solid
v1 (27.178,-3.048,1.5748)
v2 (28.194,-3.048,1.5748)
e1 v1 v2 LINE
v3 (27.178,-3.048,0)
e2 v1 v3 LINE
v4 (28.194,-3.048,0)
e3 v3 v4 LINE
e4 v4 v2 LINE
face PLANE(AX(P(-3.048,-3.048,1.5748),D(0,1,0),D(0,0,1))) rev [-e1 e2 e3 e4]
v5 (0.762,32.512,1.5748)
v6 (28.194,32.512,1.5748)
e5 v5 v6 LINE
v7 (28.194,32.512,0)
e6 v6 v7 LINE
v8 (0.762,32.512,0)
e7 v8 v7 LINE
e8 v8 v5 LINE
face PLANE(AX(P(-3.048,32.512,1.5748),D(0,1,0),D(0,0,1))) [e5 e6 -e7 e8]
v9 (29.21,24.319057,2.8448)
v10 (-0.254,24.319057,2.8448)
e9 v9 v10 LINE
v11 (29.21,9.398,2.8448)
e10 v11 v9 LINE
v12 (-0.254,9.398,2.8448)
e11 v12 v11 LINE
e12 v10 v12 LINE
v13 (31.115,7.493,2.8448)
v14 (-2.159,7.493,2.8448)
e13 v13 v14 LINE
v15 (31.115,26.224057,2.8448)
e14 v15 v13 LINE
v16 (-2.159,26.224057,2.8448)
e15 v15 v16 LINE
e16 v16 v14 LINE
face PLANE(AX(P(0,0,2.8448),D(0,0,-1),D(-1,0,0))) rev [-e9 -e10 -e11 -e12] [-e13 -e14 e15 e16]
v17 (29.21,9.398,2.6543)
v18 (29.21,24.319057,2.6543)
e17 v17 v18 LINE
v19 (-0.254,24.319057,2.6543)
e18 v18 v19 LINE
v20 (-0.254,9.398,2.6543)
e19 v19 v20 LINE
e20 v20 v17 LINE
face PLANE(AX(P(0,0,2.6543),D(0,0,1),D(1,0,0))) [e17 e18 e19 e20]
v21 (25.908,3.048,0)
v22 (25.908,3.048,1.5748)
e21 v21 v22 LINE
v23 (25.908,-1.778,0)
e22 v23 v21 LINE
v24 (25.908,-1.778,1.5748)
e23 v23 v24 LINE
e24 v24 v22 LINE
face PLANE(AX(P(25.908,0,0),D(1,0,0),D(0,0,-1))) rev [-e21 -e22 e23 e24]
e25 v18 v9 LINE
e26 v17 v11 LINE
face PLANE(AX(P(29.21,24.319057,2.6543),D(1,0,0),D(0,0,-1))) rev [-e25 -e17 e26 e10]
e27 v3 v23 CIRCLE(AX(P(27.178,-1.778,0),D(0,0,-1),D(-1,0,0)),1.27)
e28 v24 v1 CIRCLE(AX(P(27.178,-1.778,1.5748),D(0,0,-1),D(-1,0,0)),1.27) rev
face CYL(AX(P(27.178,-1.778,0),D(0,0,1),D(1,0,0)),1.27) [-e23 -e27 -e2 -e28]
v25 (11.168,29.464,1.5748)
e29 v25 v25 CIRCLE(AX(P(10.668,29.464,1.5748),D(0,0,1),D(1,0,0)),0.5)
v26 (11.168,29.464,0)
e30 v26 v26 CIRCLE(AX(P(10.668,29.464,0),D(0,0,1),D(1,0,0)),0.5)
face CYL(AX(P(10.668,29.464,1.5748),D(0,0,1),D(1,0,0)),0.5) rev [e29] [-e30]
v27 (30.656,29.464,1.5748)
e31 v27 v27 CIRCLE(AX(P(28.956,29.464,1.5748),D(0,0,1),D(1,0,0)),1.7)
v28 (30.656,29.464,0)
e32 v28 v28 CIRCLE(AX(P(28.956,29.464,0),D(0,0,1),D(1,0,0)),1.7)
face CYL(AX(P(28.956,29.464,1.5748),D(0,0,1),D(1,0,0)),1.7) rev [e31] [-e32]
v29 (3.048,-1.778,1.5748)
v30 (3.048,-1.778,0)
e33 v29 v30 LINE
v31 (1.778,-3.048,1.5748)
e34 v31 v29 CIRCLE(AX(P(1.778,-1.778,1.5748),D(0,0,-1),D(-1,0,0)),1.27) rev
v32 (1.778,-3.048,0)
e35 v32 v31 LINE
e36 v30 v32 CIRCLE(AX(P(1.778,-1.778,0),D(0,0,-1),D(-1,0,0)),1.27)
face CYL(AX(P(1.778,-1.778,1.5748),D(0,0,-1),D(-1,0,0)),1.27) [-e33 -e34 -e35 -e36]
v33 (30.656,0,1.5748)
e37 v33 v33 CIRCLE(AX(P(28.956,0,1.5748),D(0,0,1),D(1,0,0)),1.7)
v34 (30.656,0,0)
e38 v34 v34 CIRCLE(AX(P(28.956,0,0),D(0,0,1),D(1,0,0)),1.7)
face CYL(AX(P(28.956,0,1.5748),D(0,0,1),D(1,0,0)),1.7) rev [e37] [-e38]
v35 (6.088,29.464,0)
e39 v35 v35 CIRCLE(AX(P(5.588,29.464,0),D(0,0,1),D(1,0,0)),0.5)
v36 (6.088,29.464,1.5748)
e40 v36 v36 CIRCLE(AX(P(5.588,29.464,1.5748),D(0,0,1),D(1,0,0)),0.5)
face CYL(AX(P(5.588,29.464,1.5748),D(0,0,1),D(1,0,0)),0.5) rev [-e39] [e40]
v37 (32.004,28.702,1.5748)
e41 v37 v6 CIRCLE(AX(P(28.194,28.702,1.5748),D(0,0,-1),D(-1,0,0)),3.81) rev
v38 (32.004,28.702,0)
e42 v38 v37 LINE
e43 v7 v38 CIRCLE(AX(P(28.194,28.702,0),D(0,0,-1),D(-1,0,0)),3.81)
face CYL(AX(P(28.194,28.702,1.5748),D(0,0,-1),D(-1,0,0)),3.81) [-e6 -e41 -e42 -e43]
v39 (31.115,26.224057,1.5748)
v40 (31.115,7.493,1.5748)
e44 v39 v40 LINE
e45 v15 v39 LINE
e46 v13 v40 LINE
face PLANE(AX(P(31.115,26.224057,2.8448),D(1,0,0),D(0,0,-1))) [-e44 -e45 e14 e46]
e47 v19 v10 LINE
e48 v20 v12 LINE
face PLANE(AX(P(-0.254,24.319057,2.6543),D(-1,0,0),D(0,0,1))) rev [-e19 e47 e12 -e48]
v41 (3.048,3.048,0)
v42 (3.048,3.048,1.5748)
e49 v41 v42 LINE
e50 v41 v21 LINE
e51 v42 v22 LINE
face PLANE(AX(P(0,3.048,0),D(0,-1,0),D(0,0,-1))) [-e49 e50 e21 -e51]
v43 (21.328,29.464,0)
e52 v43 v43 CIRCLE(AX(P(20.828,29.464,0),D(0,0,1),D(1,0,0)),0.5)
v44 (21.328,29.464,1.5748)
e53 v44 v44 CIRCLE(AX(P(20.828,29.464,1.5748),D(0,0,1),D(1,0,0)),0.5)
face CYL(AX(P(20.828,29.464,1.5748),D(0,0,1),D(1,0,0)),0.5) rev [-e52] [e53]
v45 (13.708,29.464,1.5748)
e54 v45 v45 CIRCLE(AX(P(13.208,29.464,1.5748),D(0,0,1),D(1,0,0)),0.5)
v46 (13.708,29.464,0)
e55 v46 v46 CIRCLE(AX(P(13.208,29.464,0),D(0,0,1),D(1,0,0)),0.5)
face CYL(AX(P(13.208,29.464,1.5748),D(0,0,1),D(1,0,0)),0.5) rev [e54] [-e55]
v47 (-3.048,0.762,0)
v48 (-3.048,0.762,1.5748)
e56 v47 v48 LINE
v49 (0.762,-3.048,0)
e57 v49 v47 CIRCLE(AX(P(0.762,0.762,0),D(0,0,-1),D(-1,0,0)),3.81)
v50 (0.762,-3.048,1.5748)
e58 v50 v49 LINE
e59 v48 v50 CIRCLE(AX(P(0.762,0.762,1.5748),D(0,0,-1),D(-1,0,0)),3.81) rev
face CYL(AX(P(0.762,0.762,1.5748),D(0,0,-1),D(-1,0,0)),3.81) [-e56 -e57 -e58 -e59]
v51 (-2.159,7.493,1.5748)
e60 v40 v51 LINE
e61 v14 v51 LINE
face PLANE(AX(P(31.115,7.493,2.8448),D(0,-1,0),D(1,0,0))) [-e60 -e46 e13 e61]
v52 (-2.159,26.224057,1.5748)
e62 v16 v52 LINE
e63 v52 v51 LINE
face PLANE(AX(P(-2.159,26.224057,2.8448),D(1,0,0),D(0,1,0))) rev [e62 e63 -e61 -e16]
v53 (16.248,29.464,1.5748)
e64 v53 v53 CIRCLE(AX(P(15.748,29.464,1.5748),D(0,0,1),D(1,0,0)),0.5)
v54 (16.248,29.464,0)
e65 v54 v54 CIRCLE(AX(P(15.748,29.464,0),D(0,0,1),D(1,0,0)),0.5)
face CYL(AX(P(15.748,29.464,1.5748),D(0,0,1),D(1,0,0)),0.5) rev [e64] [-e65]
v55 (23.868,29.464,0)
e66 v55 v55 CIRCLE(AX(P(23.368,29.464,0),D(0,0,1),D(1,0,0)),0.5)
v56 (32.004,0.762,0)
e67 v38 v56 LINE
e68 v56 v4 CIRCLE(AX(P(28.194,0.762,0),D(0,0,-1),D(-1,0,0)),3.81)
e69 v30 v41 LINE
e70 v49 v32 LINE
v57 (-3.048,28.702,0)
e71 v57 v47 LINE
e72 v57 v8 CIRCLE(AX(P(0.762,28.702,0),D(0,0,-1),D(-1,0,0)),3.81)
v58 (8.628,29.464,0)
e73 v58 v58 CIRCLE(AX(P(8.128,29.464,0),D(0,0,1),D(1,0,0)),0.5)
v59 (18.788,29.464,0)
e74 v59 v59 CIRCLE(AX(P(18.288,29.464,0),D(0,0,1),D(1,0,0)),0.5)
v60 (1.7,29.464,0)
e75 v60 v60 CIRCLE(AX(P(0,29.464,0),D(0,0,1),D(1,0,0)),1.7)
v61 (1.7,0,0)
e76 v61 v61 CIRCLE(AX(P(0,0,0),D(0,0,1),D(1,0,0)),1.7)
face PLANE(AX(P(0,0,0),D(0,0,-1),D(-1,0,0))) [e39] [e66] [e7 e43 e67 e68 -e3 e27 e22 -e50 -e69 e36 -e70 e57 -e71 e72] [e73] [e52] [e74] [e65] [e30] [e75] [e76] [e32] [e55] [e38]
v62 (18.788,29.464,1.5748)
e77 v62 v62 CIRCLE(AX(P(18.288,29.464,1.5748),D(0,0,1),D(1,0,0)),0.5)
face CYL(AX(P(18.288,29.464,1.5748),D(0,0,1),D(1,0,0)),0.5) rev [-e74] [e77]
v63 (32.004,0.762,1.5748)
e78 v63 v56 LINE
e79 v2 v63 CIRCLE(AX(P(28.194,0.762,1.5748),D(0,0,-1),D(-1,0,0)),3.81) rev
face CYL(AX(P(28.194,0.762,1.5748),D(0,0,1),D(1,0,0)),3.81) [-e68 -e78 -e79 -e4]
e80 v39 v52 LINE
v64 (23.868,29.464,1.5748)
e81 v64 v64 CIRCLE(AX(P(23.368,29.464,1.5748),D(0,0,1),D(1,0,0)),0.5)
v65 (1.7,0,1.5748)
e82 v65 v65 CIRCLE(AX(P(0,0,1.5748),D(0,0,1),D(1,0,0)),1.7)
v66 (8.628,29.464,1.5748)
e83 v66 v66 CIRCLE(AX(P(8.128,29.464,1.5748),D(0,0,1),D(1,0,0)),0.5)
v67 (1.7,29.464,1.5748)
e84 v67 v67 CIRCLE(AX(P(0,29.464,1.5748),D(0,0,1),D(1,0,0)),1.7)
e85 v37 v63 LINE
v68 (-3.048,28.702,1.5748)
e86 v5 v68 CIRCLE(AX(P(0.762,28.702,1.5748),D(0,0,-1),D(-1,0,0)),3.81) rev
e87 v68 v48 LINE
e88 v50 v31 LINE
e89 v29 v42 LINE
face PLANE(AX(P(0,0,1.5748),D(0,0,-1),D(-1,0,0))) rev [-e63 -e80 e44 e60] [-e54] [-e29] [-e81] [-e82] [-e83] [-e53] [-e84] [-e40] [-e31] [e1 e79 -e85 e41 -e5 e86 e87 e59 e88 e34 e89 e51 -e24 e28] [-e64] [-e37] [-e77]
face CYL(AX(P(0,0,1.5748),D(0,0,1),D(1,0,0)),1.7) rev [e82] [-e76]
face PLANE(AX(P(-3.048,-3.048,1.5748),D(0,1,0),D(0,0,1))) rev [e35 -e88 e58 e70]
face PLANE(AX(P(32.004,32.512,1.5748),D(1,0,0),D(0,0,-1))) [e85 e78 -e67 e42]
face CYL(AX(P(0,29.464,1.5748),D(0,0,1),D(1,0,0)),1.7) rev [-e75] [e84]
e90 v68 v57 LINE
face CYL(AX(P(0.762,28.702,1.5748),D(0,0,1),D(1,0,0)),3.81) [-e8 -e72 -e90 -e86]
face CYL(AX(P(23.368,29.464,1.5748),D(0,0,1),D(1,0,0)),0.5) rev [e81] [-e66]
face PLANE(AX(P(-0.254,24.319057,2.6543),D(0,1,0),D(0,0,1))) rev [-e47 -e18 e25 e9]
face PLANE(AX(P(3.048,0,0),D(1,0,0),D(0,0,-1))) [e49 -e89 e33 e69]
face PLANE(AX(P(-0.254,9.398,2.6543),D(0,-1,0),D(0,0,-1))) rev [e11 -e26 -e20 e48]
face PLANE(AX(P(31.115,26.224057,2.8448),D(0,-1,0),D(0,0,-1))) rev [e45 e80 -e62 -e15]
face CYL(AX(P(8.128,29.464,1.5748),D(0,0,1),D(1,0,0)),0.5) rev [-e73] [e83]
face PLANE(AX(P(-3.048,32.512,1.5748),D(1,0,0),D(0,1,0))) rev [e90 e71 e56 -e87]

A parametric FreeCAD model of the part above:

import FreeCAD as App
import Part
import Sketcher
from FreeCAD import Vector
Q = App.Units.Quantity


def edges_at(feature, points):
    """Names of the edges that pass closest to the given points."""
    edges = feature.Shape.Edges
    near = lambda p: min(range(len(edges)), key=lambda i: edges[i].distToShape(Part.Vertex(*p))[0])
    return sorted({f"Edge{near(p) + 1}" for p in points})

doc = App.newDocument("Part")
body = doc.addObject("PartDesign::Body", "Body")

sketch1 = body.newObject("Sketcher::SketchObject", "Sketch")
sketch1.AttachmentSupport = (doc.getObject("XY_Plane"), [""])
sketch1.MapMode = "FlatFace"
sketch1.addGeometry([
    Part.LineSegment(Vector(-3.048, 32.512, 0), Vector(-3.048, -3.048, 0)),
    Part.LineSegment(Vector(-3.048, -3.048, 0), Vector(32.004, -3.048, 0)),
    Part.LineSegment(Vector(32.004, -3.048, 0), Vector(32.004, 32.512, 0)),
    Part.LineSegment(Vector(32.004, 32.512, 0), Vector(-3.048, 32.512, 0)),
], False)
sketch1.addConstraint([
    Sketcher.Constraint("Coincident", 0, 2, 1, 1),
    Sketcher.Constraint("Coincident", 1, 2, 2, 1),
    Sketcher.Constraint("Coincident", 2, 2, 3, 1),
    Sketcher.Constraint("Coincident", 3, 2, 0, 1),
    Sketcher.Constraint("Vertical", 0),
    Sketcher.Constraint("Horizontal", 1),
    Sketcher.Constraint("Vertical", 2),
    Sketcher.Constraint("Horizontal", 3),
    Sketcher.Constraint("DistanceY", 0, 2, 0, 1, Q("1.4 in")),
    Sketcher.Constraint("DistanceX", 1, 1, 1, 2, Q("1.38 in")),
    Sketcher.Constraint("DistanceX", 0, 2, -1, 1, Q("0.12 in")),
    Sketcher.Constraint("DistanceY", 0, 2, -1, 1, Q("0.12 in")),
])
pad1 = body.newObject("PartDesign::Pad", "Pad")
pad1.Profile = sketch1
pad1.Length = Q("0.062 in")

sketch2 = body.newObject("Sketcher::SketchObject", "Sketch001")
sketch2.AttachmentSupport = (doc.getObject("XY_Plane"), [""])
sketch2.MapMode = "FlatFace"
sketch2.AttachmentOffset = App.Placement(Vector(0, 0, 0.062 * 25.4), App.Rotation())
sketch2.addGeometry([
    Part.LineSegment(Vector(3.048, 3.048, 0), Vector(3.048, -3.048, 0)),
    Part.LineSegment(Vector(3.048, -3.048, 0), Vector(25.908, -3.048, 0)),
    Part.LineSegment(Vector(25.908, -3.048, 0), Vector(25.908, 3.048, 0)),
    Part.LineSegment(Vector(25.908, 3.048, 0), Vector(3.048, 3.048, 0)),
], False)
sketch2.addConstraint([
    Sketcher.Constraint("Coincident", 0, 2, 1, 1),
    Sketcher.Constraint("Coincident", 1, 2, 2, 1),
    Sketcher.Constraint("Coincident", 2, 2, 3, 1),
    Sketcher.Constraint("Coincident", 3, 2, 0, 1),
    Sketcher.Constraint("Vertical", 0),
    Sketcher.Constraint("Horizontal", 1),
    Sketcher.Constraint("Vertical", 2),
    Sketcher.Constraint("Horizontal", 3),
    Sketcher.Constraint("DistanceX", 1, 1, 1, 2, Q("0.9 in")),
    Sketcher.Constraint("DistanceY", 0, 2, 0, 1, Q("0.24 in")),
    Sketcher.Constraint("DistanceX", -1, 1, 0, 2, Q("0.12 in")),
    Sketcher.Constraint("DistanceY", 0, 2, -1, 1, Q("0.12 in")),
])
pocket1 = body.newObject("PartDesign::Pocket", "Pocket")
pocket1.Profile = sketch2
pocket1.Length = Q("0.062 in")

sketch3 = body.newObject("Sketcher::SketchObject", "Sketch002")
sketch3.AttachmentSupport = (doc.getObject("XY_Plane"), [""])
sketch3.MapMode = "FlatFace"
sketch3.AttachmentOffset = App.Placement(Vector(0, 0, 0.062 * 25.4), App.Rotation())
sketch3.addGeometry([
    Part.Circle(Vector(0, 29.464, 0), Vector(0, 0, 1), 1.7),
    Part.Circle(Vector(0, 0, 0), Vector(0, 0, 1), 1.7),
    Part.Circle(Vector(28.956, 0, 0), Vector(0, 0, 1), 1.7),
    Part.Circle(Vector(28.956, 29.464, 0), Vector(0, 0, 1), 1.7),
], False)
sketch3.addConstraint([
    Sketcher.Constraint("Coincident", 1, 3, -1, 1),
    Sketcher.Constraint("Equal", 0, 1),
    Sketcher.Constraint("Equal", 1, 2),
    Sketcher.Constraint("Equal", 2, 3),
    Sketcher.Constraint("PointOnObject", 0, 3, -2),
    Sketcher.Constraint("PointOnObject", 2, 3, -1),
    Sketcher.Constraint("Horizontal", 0, 3, 3, 3),
    Sketcher.Constraint("Vertical", 2, 3, 3, 3),
    Sketcher.Constraint("Diameter", 0, 3.4),
    Sketcher.Constraint("DistanceY", -1, 1, 0, 3, Q("1.16 in")),
    Sketcher.Constraint("DistanceX", -1, 1, 2, 3, Q("1.14 in")),
])
doc.recompute()
hole = body.newObject("PartDesign::Hole", "Hole")
hole.Profile = sketch3
hole.ThreadType = "None"
hole.Diameter = 3.4
hole.DepthType = "ThroughAll"

sketch4 = body.newObject("Sketcher::SketchObject", "Sketch003")
sketch4.AttachmentSupport = (doc.getObject("XY_Plane"), [""])
sketch4.MapMode = "FlatFace"
sketch4.AttachmentOffset = App.Placement(Vector(0, 0, 0.062 * 25.4), App.Rotation())
sketch4.addGeometry([
    Part.Circle(Vector(5.588, 29.464, 0), Vector(0, 0, 1), 0.5),
    Part.Circle(Vector(8.128, 29.464, 0), Vector(0, 0, 1), 0.5),
    Part.Circle(Vector(10.668, 29.464, 0), Vector(0, 0, 1), 0.5),
    Part.Circle(Vector(13.208, 29.464, 0), Vector(0, 0, 1), 0.5),
    Part.Circle(Vector(15.748, 29.464, 0), Vector(0, 0, 1), 0.5),
    Part.Circle(Vector(18.288, 29.464, 0), Vector(0, 0, 1), 0.5),
    Part.Circle(Vector(20.828, 29.464, 0), Vector(0, 0, 1), 0.5),
    Part.Circle(Vector(23.368, 29.464, 0), Vector(0, 0, 1), 0.5),
], False)
sketch4.addConstraint([
    Sketcher.Constraint("Equal", 0, 1),
    Sketcher.Constraint("Equal", 1, 2),
    Sketcher.Constraint("Equal", 2, 3),
    Sketcher.Constraint("Equal", 3, 4),
    Sketcher.Constraint("Equal", 4, 5),
    Sketcher.Constraint("Equal", 5, 6),
    Sketcher.Constraint("Equal", 6, 7),
    Sketcher.Constraint("Horizontal", 0, 3, 1, 3),
    Sketcher.Constraint("Horizontal", 1, 3, 2, 3),
    Sketcher.Constraint("Horizontal", 2, 3, 3, 3),
    Sketcher.Constraint("Horizontal", 3, 3, 4, 3),
    Sketcher.Constraint("Horizontal", 4, 3, 5, 3),
    Sketcher.Constraint("Horizontal", 5, 3, 6, 3),
    Sketcher.Constraint("Horizontal", 6, 3, 7, 3),
    Sketcher.Constraint("DistanceX", 0, 3, 1, 3, Q("0.1 in")),
    Sketcher.Constraint("DistanceX", 1, 3, 2, 3, Q("0.1 in")),
    Sketcher.Constraint("DistanceX", 2, 3, 3, 3, Q("0.1 in")),
    Sketcher.Constraint("DistanceX", 3, 3, 4, 3, Q("0.1 in")),
    Sketcher.Constraint("DistanceX", 4, 3, 5, 3, Q("0.1 in")),
    Sketcher.Constraint("DistanceX", 5, 3, 6, 3, Q("0.1 in")),
    Sketcher.Constraint("DistanceX", 6, 3, 7, 3, Q("0.1 in")),
    Sketcher.Constraint("Diameter", 0, 1.0),
    Sketcher.Constraint("DistanceX", -1, 1, 0, 3, Q("0.22 in")),
    Sketcher.Constraint("DistanceY", -1, 1, 0, 3, Q("1.16 in")),
])
doc.recompute()
hole2 = body.newObject("PartDesign::Hole", "Hole001")
hole2.Profile = sketch4
hole2.ThreadType = "None"
hole2.Diameter = 1
hole2.DepthType = "ThroughAll"
doc.recompute()

fillet = body.newObject("PartDesign::Fillet", "Fillet")
fillet.Base = (hole2, edges_at(hole2, [
    (-3.048, 32.512, 0.787),
    (-3.048, -3.048, 0.787),
    (32.004, -3.048, 0.787),
    (32.004, 32.512, 0.787),
]))
fillet.Radius = Q("0.15 in")
doc.recompute()

fillet2 = body.newObject("PartDesign::Fillet", "Fillet001")
fillet2.Base = (fillet, edges_at(fillet, [(25.908, -3.048, 0.787), (3.048, -3.048, 0.787)]))
fillet2.Radius = Q("0.05 in")

sketch5 = body.newObject("Sketcher::SketchObject", "Sketch004")
sketch5.AttachmentSupport = (doc.getObject("XY_Plane"), [""])
sketch5.MapMode = "FlatFace"
sketch5.AttachmentOffset = App.Placement(Vector(0, 0, 0.062 * 25.4), App.Rotation())
sketch5.addGeometry([
    Part.LineSegment(Vector(-2.159, 26.224057, 0), Vector(-2.159, 7.493, 0)),
    Part.LineSegment(Vector(-2.159, 7.493, 0), Vector(31.115, 7.493, 0)),
    Part.LineSegment(Vector(31.115, 7.493, 0), Vector(31.115, 26.224057, 0)),
    Part.LineSegment(Vector(31.115, 26.224057, 0), Vector(-2.159, 26.224057, 0)),
], False)
sketch5.addConstraint([
    Sketcher.Constraint("Coincident", 0, 2, 1, 1),
    Sketcher.Constraint("Coincident", 1, 2, 2, 1),
    Sketcher.Constraint("Coincident", 2, 2, 3, 1),
    Sketcher.Constraint("Coincident", 3, 2, 0, 1),
    Sketcher.Constraint("Vertical", 0),
    Sketcher.Constraint("Horizontal", 1),
    Sketcher.Constraint("Vertical", 2),
    Sketcher.Constraint("Horizontal", 3),
    Sketcher.Constraint("DistanceX", 1, 1, 1, 2, Q("1.31 in")),
    Sketcher.Constraint("DistanceX", 0, 2, -1, 1, Q("0.085 in")),
    Sketcher.Constraint("DistanceY", -1, 1, 0, 2, Q("0.295 in")),
    Sketcher.Constraint("DistanceY", 0, 2, 0, 1, 18.731057),
])
pad2 = body.newObject("PartDesign::Pad", "Pad001")
pad2.Profile = sketch5
pad2.Length = Q("0.05 in")

sketch6 = body.newObject("Sketcher::SketchObject", "Sketch005")
sketch6.AttachmentSupport = (doc.getObject("XY_Plane"), [""])
sketch6.MapMode = "FlatFace"
sketch6.AttachmentOffset = App.Placement(Vector(0, 0, 0.112 * 25.4), App.Rotation())
sketch6.addGeometry([
    Part.LineSegment(Vector(-0.254, 24.319057, 0), Vector(-0.254, 9.398, 0)),
    Part.LineSegment(Vector(-0.254, 9.398, 0), Vector(29.21, 9.398, 0)),
    Part.LineSegment(Vector(29.21, 9.398, 0), Vector(29.21, 24.319057, 0)),
    Part.LineSegment(Vector(29.21, 24.319057, 0), Vector(-0.254, 24.319057, 0)),
], False)
sketch6.addConstraint([
    Sketcher.Constraint("Coincident", 0, 2, 1, 1),
    Sketcher.Constraint("Coincident", 1, 2, 2, 1),
    Sketcher.Constraint("Coincident", 2, 2, 3, 1),
    Sketcher.Constraint("Coincident", 3, 2, 0, 1),
    Sketcher.Constraint("Vertical", 0),
    Sketcher.Constraint("Horizontal", 1),
    Sketcher.Constraint("Vertical", 2),
    Sketcher.Constraint("Horizontal", 3),
    Sketcher.Constraint("DistanceX", 1, 1, 1, 2, Q("1.16 in")),
    Sketcher.Constraint("DistanceX", 0, 2, -1, 1, Q("0.01 in")),
    Sketcher.Constraint("DistanceY", -1, 1, 0, 2, Q("0.37 in")),
    Sketcher.Constraint("DistanceY", 0, 2, 0, 1, 14.921057),
])
pocket2 = body.newObject("PartDesign::Pocket", "Pocket001")
pocket2.Profile = sketch6
pocket2.Length = Q("0.0075 in")

doc.recompute()
